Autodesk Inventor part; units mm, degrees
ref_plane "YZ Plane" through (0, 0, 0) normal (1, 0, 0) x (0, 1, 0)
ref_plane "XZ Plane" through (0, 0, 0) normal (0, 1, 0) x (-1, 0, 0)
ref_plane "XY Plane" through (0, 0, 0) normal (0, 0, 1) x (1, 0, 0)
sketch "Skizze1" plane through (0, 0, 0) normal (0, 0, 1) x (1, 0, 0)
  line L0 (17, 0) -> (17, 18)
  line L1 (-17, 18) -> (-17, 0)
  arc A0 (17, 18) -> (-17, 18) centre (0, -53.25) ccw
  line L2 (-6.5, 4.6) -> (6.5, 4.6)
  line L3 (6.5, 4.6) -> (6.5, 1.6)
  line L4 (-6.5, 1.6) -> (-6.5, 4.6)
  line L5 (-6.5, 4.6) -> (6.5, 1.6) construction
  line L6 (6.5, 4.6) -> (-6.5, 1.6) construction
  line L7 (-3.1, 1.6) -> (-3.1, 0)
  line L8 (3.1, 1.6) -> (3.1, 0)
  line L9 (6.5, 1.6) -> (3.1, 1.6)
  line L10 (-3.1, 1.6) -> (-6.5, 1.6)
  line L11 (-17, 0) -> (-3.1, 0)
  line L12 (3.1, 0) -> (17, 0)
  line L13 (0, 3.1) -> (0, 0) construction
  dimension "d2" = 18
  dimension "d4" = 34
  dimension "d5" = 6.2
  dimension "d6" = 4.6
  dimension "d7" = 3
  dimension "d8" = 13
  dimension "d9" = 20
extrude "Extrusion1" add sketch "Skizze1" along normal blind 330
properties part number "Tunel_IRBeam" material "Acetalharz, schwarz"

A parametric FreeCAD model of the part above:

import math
import FreeCAD as App
import Part
import Sketcher

V = App.Vector
Q = App.Units.Quantity

doc = App.newDocument("Part")
params = doc.addObject("Spreadsheet::Sheet", "Params")
for row, (alias, value) in enumerate([
    ("sketch1_width", "13 mm"),
    ("sketch1_height", "18 mm"),
    ("sketch1_height2", "3 mm"),
    ("sketch1_radius", "73.25 mm"),
    ("pad1_length", "330 mm"),
], start=1):
    params.set(f"A{row}", alias)
    params.set(f"B{row}", "=" + value)
    params.setAlias(f"B{row}", alias)

body = doc.addObject("PartDesign::Body", "Body")

# Sketch on XY plane
sketch1 = body.newObject("Sketcher::SketchObject", "Sketch")
sketch1.AttachmentSupport = (doc.getObject("XY_Plane"), [""])
sketch1.MapMode = "FlatFace"
sketch1.addGeometry(Part.LineSegment(V(3.1, 0, 0), V(17, 0, 0)), False)
sketch1.addGeometry(Part.LineSegment(V(17, 0, 0), V(17, 18, 0)), False)
sketch1.addGeometry(Part.ArcOfCircle(Part.Circle(V(0, -53.2, 0), V(0, 0, 1), 73.2), math.radians(77), math.radians(103)), False)
sketch1.addGeometry(Part.LineSegment(V(-17, 18, 0), V(-17, 0, 0)), False)
sketch1.addGeometry(Part.LineSegment(V(-17, 0, 0), V(-3.1, 0, 0)), False)
sketch1.addGeometry(Part.LineSegment(V(-3.1, 0, 0), V(-3.1, 1.6, 0)), False)
sketch1.addGeometry(Part.LineSegment(V(-3.1, 1.6, 0), V(-6.5, 1.6, 0)), False)
sketch1.addGeometry(Part.LineSegment(V(-6.5, 1.6, 0), V(-6.5, 4.6, 0)), False)
sketch1.addGeometry(Part.LineSegment(V(-6.5, 4.6, 0), V(6.5, 4.6, 0)), False)
sketch1.addGeometry(Part.LineSegment(V(6.5, 4.6, 0), V(6.5, 1.6, 0)), False)
sketch1.addGeometry(Part.LineSegment(V(6.5, 1.6, 0), V(3.1, 1.6, 0)), False)
sketch1.addGeometry(Part.LineSegment(V(3.1, 1.6, 0), V(3.1, 0, 0)), False)
sketch1.addConstraint(Sketcher.Constraint("Coincident", 0, 2, 1, 1))
sketch1.addConstraint(Sketcher.Constraint("Coincident", 1, 2, 2, 1))
sketch1.addConstraint(Sketcher.Constraint("Coincident", 2, 2, 3, 1))
sketch1.addConstraint(Sketcher.Constraint("Coincident", 3, 2, 4, 1))
sketch1.addConstraint(Sketcher.Constraint("Coincident", 4, 2, 5, 1))
sketch1.addConstraint(Sketcher.Constraint("Coincident", 5, 2, 6, 1))
sketch1.addConstraint(Sketcher.Constraint("Coincident", 6, 2, 7, 1))
sketch1.addConstraint(Sketcher.Constraint("Coincident", 7, 2, 8, 1))
sketch1.addConstraint(Sketcher.Constraint("Coincident", 8, 2, 9, 1))
sketch1.addConstraint(Sketcher.Constraint("Coincident", 9, 2, 10, 1))
sketch1.addConstraint(Sketcher.Constraint("Coincident", 10, 2, 11, 1))
sketch1.addConstraint(Sketcher.Constraint("Coincident", 11, 2, 0, 1))
sketch1.addConstraint(Sketcher.Constraint("Horizontal", 0))
sketch1.addConstraint(Sketcher.Constraint("Vertical", 1))
sketch1.addConstraint(Sketcher.Constraint("Vertical", 3))
sketch1.addConstraint(Sketcher.Constraint("Horizontal", 4))
sketch1.addConstraint(Sketcher.Constraint("Vertical", 5))
sketch1.addConstraint(Sketcher.Constraint("Horizontal", 6))
sketch1.addConstraint(Sketcher.Constraint("Vertical", 7))
sketch1.addConstraint(Sketcher.Constraint("Horizontal", 8))
sketch1.addConstraint(Sketcher.Constraint("Vertical", 9))
sketch1.addConstraint(Sketcher.Constraint("Horizontal", 10))
sketch1.addConstraint(Sketcher.Constraint("Vertical", 11))
sketch1.addConstraint(Sketcher.Constraint("Symmetric", 0, 2, 3, 2, -1, 1))
sketch1.addConstraint(Sketcher.Constraint("Symmetric", 6, 2, 9, 2, -2))
sketch1.addConstraint(Sketcher.Constraint("Symmetric", 4, 2, 11, 2, -2))
sketch1.addConstraint(Sketcher.Constraint("PointOnObject", 2, 3, -2))
sketch1.addConstraint(Sketcher.Constraint("DistanceX", 8, 1, 8, 2, Q("13 mm")))
sketch1.addConstraint(Sketcher.Constraint("DistanceY", 1, 1, 1, 2, Q("18 mm")))
sketch1.addConstraint(Sketcher.Constraint("DistanceY", 7, 1, 7, 2, Q("3 mm")))
sketch1.addConstraint(Sketcher.Constraint("DistanceX", 2, 2, 1, 2, Q("34 mm")))
sketch1.addConstraint(Sketcher.Constraint("DistanceY", -1, 1, 7, 2, Q("4.6 mm")))
sketch1.addConstraint(Sketcher.Constraint("DistanceX", 5, 2, 10, 2, Q("6.2 mm")))
sketch1.addConstraint(Sketcher.Constraint("Radius", 2, Q("73.25 mm")))
sketch1.setExpression("Constraints[27]", "Params.sketch1_width")
sketch1.setExpression("Constraints[28]", "Params.sketch1_height")
sketch1.setExpression("Constraints[29]", "Params.sketch1_height2")
sketch1.setExpression("Constraints[33]", "Params.sketch1_radius")
pad1 = body.newObject("PartDesign::Pad", "Pad")
pad1.Profile = sketch1
pad1.setExpression("Length", "Params.pad1_length")

doc.recompute()
